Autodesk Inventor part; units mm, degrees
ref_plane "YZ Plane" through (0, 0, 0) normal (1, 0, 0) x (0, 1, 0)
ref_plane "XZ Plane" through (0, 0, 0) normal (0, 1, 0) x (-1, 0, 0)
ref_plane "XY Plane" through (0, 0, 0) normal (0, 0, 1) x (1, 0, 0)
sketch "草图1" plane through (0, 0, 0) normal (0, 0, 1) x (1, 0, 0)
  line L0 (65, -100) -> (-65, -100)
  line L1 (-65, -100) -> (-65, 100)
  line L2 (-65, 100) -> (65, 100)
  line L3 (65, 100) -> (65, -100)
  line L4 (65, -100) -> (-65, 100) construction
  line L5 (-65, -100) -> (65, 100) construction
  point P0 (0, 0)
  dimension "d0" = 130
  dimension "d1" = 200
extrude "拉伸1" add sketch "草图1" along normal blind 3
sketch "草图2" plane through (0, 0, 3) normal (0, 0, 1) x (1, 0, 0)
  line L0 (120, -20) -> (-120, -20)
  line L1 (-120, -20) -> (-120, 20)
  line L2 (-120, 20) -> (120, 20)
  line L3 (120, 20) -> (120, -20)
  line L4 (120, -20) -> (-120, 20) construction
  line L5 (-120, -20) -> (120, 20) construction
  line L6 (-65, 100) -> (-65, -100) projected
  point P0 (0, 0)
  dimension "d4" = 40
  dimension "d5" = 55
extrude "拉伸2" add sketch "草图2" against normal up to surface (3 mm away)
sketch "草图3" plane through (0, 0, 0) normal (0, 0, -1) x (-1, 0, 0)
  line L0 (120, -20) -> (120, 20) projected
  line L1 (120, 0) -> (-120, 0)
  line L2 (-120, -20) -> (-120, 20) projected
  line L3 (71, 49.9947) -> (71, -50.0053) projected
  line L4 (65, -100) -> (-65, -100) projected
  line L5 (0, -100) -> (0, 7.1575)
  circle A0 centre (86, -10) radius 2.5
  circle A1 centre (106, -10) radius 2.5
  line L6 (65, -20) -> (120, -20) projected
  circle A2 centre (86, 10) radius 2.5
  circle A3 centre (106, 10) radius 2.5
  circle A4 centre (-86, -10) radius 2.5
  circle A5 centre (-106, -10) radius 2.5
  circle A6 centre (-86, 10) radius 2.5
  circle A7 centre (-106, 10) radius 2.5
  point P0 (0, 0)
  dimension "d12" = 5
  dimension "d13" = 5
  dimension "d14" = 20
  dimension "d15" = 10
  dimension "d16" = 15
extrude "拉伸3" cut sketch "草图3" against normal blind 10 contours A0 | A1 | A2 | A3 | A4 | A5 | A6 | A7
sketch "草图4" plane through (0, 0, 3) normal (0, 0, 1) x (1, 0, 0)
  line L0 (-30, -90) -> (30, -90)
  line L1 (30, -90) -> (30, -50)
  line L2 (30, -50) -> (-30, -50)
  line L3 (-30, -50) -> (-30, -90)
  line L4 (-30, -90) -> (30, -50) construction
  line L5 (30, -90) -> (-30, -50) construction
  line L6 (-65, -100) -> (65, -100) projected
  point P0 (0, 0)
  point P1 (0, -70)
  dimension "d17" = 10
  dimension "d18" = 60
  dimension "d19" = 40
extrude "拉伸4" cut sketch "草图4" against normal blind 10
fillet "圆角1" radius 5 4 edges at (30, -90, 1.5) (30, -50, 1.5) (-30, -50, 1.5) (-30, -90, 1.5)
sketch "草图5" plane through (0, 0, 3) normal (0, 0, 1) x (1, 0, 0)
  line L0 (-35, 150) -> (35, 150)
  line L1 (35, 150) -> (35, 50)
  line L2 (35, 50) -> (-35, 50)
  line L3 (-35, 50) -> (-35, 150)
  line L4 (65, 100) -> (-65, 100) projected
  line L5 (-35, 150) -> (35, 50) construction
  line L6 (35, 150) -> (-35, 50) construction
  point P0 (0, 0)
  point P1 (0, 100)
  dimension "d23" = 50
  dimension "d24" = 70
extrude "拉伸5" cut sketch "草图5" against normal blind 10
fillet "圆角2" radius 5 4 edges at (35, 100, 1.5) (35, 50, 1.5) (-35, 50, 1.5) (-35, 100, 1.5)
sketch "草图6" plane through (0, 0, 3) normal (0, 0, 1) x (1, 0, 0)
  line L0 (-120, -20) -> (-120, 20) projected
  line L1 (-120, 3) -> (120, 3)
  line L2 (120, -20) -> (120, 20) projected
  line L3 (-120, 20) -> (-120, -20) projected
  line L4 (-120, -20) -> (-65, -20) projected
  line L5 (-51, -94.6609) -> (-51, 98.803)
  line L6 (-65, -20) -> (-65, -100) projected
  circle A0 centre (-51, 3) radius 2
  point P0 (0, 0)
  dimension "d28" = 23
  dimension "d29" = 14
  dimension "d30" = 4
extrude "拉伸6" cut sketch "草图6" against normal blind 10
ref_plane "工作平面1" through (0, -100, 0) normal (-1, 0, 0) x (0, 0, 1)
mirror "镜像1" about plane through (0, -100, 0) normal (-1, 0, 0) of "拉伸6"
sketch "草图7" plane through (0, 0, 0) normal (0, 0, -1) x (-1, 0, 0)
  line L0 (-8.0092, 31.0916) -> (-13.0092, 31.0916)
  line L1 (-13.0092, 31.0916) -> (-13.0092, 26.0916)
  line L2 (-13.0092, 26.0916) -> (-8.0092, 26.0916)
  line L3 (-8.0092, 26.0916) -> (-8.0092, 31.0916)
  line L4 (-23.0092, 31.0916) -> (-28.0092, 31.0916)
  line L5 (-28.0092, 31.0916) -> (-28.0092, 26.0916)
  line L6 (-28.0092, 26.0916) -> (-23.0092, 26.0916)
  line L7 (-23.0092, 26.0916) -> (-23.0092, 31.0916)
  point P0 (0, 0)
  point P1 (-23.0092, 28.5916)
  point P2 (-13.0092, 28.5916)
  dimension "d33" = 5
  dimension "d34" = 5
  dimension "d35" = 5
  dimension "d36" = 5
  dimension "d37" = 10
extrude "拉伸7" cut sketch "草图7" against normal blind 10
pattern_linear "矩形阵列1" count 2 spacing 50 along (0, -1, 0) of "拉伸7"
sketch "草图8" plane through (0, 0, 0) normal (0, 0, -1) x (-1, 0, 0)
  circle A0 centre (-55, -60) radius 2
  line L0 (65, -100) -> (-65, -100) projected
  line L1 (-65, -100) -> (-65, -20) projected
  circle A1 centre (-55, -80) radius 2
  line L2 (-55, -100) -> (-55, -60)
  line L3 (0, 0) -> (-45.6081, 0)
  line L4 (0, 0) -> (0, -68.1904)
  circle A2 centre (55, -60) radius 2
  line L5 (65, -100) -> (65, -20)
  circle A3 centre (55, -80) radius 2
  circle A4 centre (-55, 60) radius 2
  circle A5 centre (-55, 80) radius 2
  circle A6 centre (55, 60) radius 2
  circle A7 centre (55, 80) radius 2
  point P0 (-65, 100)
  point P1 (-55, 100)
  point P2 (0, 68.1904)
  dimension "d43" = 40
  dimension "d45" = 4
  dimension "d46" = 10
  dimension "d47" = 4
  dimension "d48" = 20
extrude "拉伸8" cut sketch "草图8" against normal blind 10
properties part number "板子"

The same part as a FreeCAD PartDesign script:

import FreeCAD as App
import Part
import Sketcher

V = App.Vector


def edges_at(feature, points):
    """Names of the edges that pass closest to the given points."""
    edges = feature.Shape.Edges
    near = lambda p: min(range(len(edges)), key=lambda i: edges[i].distToShape(Part.Vertex(*p))[0])
    return sorted({f"Edge{near(p) + 1}" for p in points})

doc = App.newDocument("Part")
body = doc.addObject("PartDesign::Body", "Body")

# Sketch on XY plane
sketch1 = body.newObject("Sketcher::SketchObject", "Sketch")
sketch1.AttachmentSupport = (doc.getObject("XY_Plane"), [""])
sketch1.MapMode = "FlatFace"
sketch1.addGeometry([
    Part.LineSegment(V(-65, -100, 0), V(65, -100, 0)),
    Part.LineSegment(V(65, -100, 0), V(65, 100, 0)),
    Part.LineSegment(V(65, 100, 0), V(-65, 100, 0)),
    Part.LineSegment(V(-65, 100, 0), V(-65, -100, 0)),
], False)
sketch1.addConstraint([
    Sketcher.Constraint("Coincident", 0, 2, 1, 1),
    Sketcher.Constraint("Coincident", 1, 2, 2, 1),
    Sketcher.Constraint("Coincident", 2, 2, 3, 1),
    Sketcher.Constraint("Coincident", 3, 2, 0, 1),
    Sketcher.Constraint("Horizontal", 0),
    Sketcher.Constraint("Vertical", 1),
    Sketcher.Constraint("Horizontal", 2),
    Sketcher.Constraint("Vertical", 3),
    Sketcher.Constraint("Symmetric", 0, 2, 2, 2, -1, 1),
    Sketcher.Constraint("DistanceX", 0, 1, 0, 2, 130.0),
    Sketcher.Constraint("DistanceY", 1, 1, 1, 2, 200.0),
])
pad1 = body.newObject("PartDesign::Pad", "Pad")
pad1.Profile = sketch1
pad1.Length = 3

# Sketch on XY plane
sketch2 = body.newObject("Sketcher::SketchObject", "Sketch001")
sketch2.AttachmentSupport = (doc.getObject("XY_Plane"), [""])
sketch2.MapMode = "FlatFace"
sketch2.AttachmentOffset = App.Placement(V(0, 0, 3), App.Rotation())
sketch2.addGeometry([
    Part.LineSegment(V(120, -20, 0), V(120, 20, 0)),
    Part.LineSegment(V(120, 20, 0), V(-120, 20, 0)),
    Part.LineSegment(V(-120, 20, 0), V(-120, -20, 0)),
    Part.LineSegment(V(-120, -20, 0), V(120, -20, 0)),
], False)
sketch2.addConstraint([
    Sketcher.Constraint("Coincident", 0, 2, 1, 1),
    Sketcher.Constraint("Coincident", 1, 2, 2, 1),
    Sketcher.Constraint("Coincident", 2, 2, 3, 1),
    Sketcher.Constraint("Coincident", 3, 2, 0, 1),
    Sketcher.Constraint("Vertical", 0),
    Sketcher.Constraint("Horizontal", 1),
    Sketcher.Constraint("Vertical", 2),
    Sketcher.Constraint("Horizontal", 3),
    Sketcher.Constraint("Symmetric", 0, 2, 2, 2, -1, 1),
    Sketcher.Constraint("DistanceY", 0, 1, 0, 2, 40.0),
    Sketcher.Constraint("DistanceX", 1, 2, 1, 1, 240.0),
])
pad2 = body.newObject("PartDesign::Pad", "Pad001")
pad2.Profile = sketch2
pad2.Length = 3
pad2.Reversed = True

# Sketch on XY plane
sketch3 = body.newObject("Sketcher::SketchObject", "Sketch002")
sketch3.AttachmentSupport = (doc.getObject("XY_Plane"), [""])
sketch3.MapMode = "FlatFace"
sketch3.addGeometry([
    Part.Circle(V(-86, -10, 0), V(0, 0, 1), 2.5),  # 0
    Part.Circle(V(-106, -10, 0), V(0, 0, 1), 2.5),  # 1
    Part.Circle(V(-86, 10, 0), V(0, 0, 1), 2.5),  # 2
    Part.Circle(V(-106, 10, 0), V(0, 0, 1), 2.5),  # 3
    Part.Circle(V(86, -10, 0), V(0, 0, 1), 2.5),  # 4
    Part.Circle(V(106, -10, 0), V(0, 0, 1), 2.5),  # 5
    Part.Circle(V(86, 10, 0), V(0, 0, 1), 2.5),  # 6
    Part.Circle(V(106, 10, 0), V(0, 0, 1), 2.5),  # 7
], False)
sketch3.addConstraint([
    Sketcher.Constraint("Equal", 0, 1),
    Sketcher.Constraint("Equal", 1, 2),
    Sketcher.Constraint("Equal", 2, 3),
    Sketcher.Constraint("Equal", 3, 4),
    Sketcher.Constraint("Equal", 4, 5),
    Sketcher.Constraint("Equal", 5, 6),
    Sketcher.Constraint("Equal", 6, 7),
    Sketcher.Constraint("Symmetric", 2, 3, 4, 3, -1, 1),
    Sketcher.Constraint("Symmetric", 3, 3, 5, 3, -1, 1),
    Sketcher.Constraint("Symmetric", 0, 3, 6, 3, -1, 1),
    Sketcher.Constraint("Symmetric", 1, 3, 7, 3, -1, 1),
    Sketcher.Constraint("Symmetric", 0, 3, 4, 3, -2),
    Sketcher.Constraint("Symmetric", 1, 3, 5, 3, -2),
    Sketcher.Constraint("Horizontal", 0, 3, 1, 3),
    Sketcher.Constraint("Diameter", 0, 5.0),
    Sketcher.Constraint("DistanceY", 0, 3, -1, 1, 10.0),
    Sketcher.Constraint("DistanceX", 1, 3, 0, 3, 20.0),
    Sketcher.Constraint("DistanceX", 0, 3, -1, 1, 86.0),
])
pocket1 = body.newObject("PartDesign::Pocket", "Pocket")
pocket1.Profile = sketch3
pocket1.Length = 10
pocket1.Reversed = True

# Sketch on XY plane
sketch4 = body.newObject("Sketcher::SketchObject", "Sketch003")
sketch4.AttachmentSupport = (doc.getObject("XY_Plane"), [""])
sketch4.MapMode = "FlatFace"
sketch4.AttachmentOffset = App.Placement(V(0, 0, 3), App.Rotation())
sketch4.addGeometry([
    Part.LineSegment(V(-30, -50, 0), V(-30, -90, 0)),
    Part.LineSegment(V(-30, -90, 0), V(30, -90, 0)),
    Part.LineSegment(V(30, -90, 0), V(30, -50, 0)),
    Part.LineSegment(V(30, -50, 0), V(-30, -50, 0)),
], False)
sketch4.addConstraint([
    Sketcher.Constraint("Coincident", 0, 2, 1, 1),
    Sketcher.Constraint("Coincident", 1, 2, 2, 1),
    Sketcher.Constraint("Coincident", 2, 2, 3, 1),
    Sketcher.Constraint("Coincident", 3, 2, 0, 1),
    Sketcher.Constraint("Vertical", 0),
    Sketcher.Constraint("Horizontal", 1),
    Sketcher.Constraint("Vertical", 2),
    Sketcher.Constraint("Horizontal", 3),
    Sketcher.Constraint("DistanceX", 1, 1, 1, 2, 60.0),
    Sketcher.Constraint("DistanceY", 0, 2, 0, 1, 40.0),
    Sketcher.Constraint("DistanceX", 0, 2, -1, 1, 30.0),
    Sketcher.Constraint("DistanceY", 0, 2, -1, 1, 90.0),
])
pocket2 = body.newObject("PartDesign::Pocket", "Pocket001")
pocket2.Profile = sketch4
pocket2.Length = 10
doc.recompute()

fillet = body.newObject("PartDesign::Fillet", "Fillet")
fillet.Base = (pocket2, edges_at(pocket2, [
    (30, -90, 1.5),
    (30, -50, 1.5),
    (-30, -50, 1.5),
    (-30, -90, 1.5),
]))
fillet.Radius = 5

# Sketch on XY plane
sketch5 = body.newObject("Sketcher::SketchObject", "Sketch004")
sketch5.AttachmentSupport = (doc.getObject("XY_Plane"), [""])
sketch5.MapMode = "FlatFace"
sketch5.AttachmentOffset = App.Placement(V(0, 0, 3), App.Rotation())
sketch5.addGeometry([
    Part.LineSegment(V(35, 150, 0), V(-35, 150, 0)),
    Part.LineSegment(V(-35, 150, 0), V(-35, 50, 0)),
    Part.LineSegment(V(-35, 50, 0), V(35, 50, 0)),
    Part.LineSegment(V(35, 50, 0), V(35, 150, 0)),
], False)
sketch5.addConstraint([
    Sketcher.Constraint("Coincident", 0, 2, 1, 1),
    Sketcher.Constraint("Coincident", 1, 2, 2, 1),
    Sketcher.Constraint("Coincident", 2, 2, 3, 1),
    Sketcher.Constraint("Coincident", 3, 2, 0, 1),
    Sketcher.Constraint("Horizontal", 0),
    Sketcher.Constraint("Vertical", 1),
    Sketcher.Constraint("Horizontal", 2),
    Sketcher.Constraint("Vertical", 3),
    Sketcher.Constraint("DistanceX", 0, 2, 0, 1, 70.0),
    Sketcher.Constraint("DistanceY", -1, 1, 1, 2, 50.0),
    Sketcher.Constraint("DistanceY", 1, 2, 1, 1, 100.0),
    Sketcher.Constraint("DistanceX", 0, 2, -1, 1, 35.0),
])
pocket3 = body.newObject("PartDesign::Pocket", "Pocket002")
pocket3.Profile = sketch5
pocket3.Length = 10
doc.recompute()

fillet2 = body.newObject("PartDesign::Fillet", "Fillet001")
fillet2.Base = (pocket3, edges_at(pocket3, [
    (35, 100, 1.5),
    (35, 50, 1.5),
    (-35, 50, 1.5),
    (-35, 100, 1.5),
]))
fillet2.Radius = 5

# Sketch on XY plane
sketch6 = body.newObject("Sketcher::SketchObject", "Sketch005")
sketch6.AttachmentSupport = (doc.getObject("XY_Plane"), [""])
sketch6.MapMode = "FlatFace"
sketch6.AttachmentOffset = App.Placement(V(0, 0, 3), App.Rotation())
sketch6.addGeometry(Part.Circle(V(-51, 3, 0), V(0, 0, 1), 2), False)
sketch6.addConstraint([
    Sketcher.Constraint("Diameter", 0, 4.0),
    Sketcher.Constraint("DistanceX", 0, 3, -1, 1, 51.0),
    Sketcher.Constraint("DistanceY", -1, 1, 0, 3, 3.0),
])
pocket4 = body.newObject("PartDesign::Pocket", "Pocket003")
pocket4.Profile = sketch6
pocket4.Length = 10
doc.recompute()

mirrored = body.newObject("PartDesign::Mirrored", "Mirrored")
mirrored.Originals = [pocket4]
mirrored.MirrorPlane = (doc.getObject("YZ_Plane"), [""])
body.Tip = mirrored

# Sketch on XY plane
sketch7 = body.newObject("Sketcher::SketchObject", "Sketch006")
sketch7.AttachmentSupport = (doc.getObject("XY_Plane"), [""])
sketch7.MapMode = "FlatFace"
sketch7.addGeometry([
    Part.LineSegment(V(8.0092, 26.0916, 0), V(8.0092, 31.0916, 0)),  # 0
    Part.LineSegment(V(8.0092, 31.0916, 0), V(13.0092, 31.0916, 0)),  # 1
    Part.LineSegment(V(13.0092, 31.0916, 0), V(13.0092, 26.0916, 0)),  # 2
    Part.LineSegment(V(13.0092, 26.0916, 0), V(8.0092, 26.0916, 0)),  # 3
    Part.LineSegment(V(23.0092, 26.0916, 0), V(23.0092, 31.0916, 0)),  # 4
    Part.LineSegment(V(23.0092, 31.0916, 0), V(28.0092, 31.0916, 0)),  # 5
    Part.LineSegment(V(28.0092, 31.0916, 0), V(28.0092, 26.0916, 0)),  # 6
    Part.LineSegment(V(28.0092, 26.0916, 0), V(23.0092, 26.0916, 0)),  # 7
], False)
sketch7.addConstraint([
    Sketcher.Constraint("Coincident", 0, 2, 1, 1),
    Sketcher.Constraint("Coincident", 1, 2, 2, 1),
    Sketcher.Constraint("Coincident", 2, 2, 3, 1),
    Sketcher.Constraint("Coincident", 3, 2, 0, 1),
    Sketcher.Constraint("Coincident", 4, 2, 5, 1),
    Sketcher.Constraint("Coincident", 5, 2, 6, 1),
    Sketcher.Constraint("Coincident", 6, 2, 7, 1),
    Sketcher.Constraint("Coincident", 7, 2, 4, 1),
    Sketcher.Constraint("Vertical", 0),
    Sketcher.Constraint("Horizontal", 1),
    Sketcher.Constraint("Vertical", 2),
    Sketcher.Constraint("Horizontal", 3),
    Sketcher.Constraint("Vertical", 4),
    Sketcher.Constraint("Horizontal", 5),
    Sketcher.Constraint("Vertical", 6),
    Sketcher.Constraint("Horizontal", 7),
    Sketcher.Constraint("Horizontal", 1, 2, 4, 2),
    Sketcher.Constraint("Horizontal", 3, 2, 6, 2),
    Sketcher.Constraint("Equal", 3, 5),
    Sketcher.Constraint("Equal", 7, 0),
    Sketcher.Constraint("DistanceX", 1, 1, 1, 2, 5.0),
    Sketcher.Constraint("DistanceX", 1, 2, 4, 2, 10.0),
    Sketcher.Constraint("DistanceX", -1, 1, 0, 2, 8.0092),
    Sketcher.Constraint("DistanceY", -1, 1, 0, 2, 31.0916),
])
pocket5 = body.newObject("PartDesign::Pocket", "Pocket004")
pocket5.Profile = sketch7
pocket5.Length = 10
pocket5.Reversed = True
doc.recompute()

linearpattern = body.newObject("PartDesign::LinearPattern", "LinearPattern")
linearpattern.Originals = [pocket5]
linearpattern.Direction = (doc.getObject("Y_Axis"), [""])
linearpattern.Mode = "offset"
linearpattern.Offset = 50
linearpattern.Occurrences = 2
linearpattern.Reversed = True
body.Tip = linearpattern

# Sketch on XY plane
sketch8 = body.newObject("Sketcher::SketchObject", "Sketch007")
sketch8.AttachmentSupport = (doc.getObject("XY_Plane"), [""])
sketch8.MapMode = "FlatFace"
sketch8.addGeometry([
    Part.Circle(V(55, -60, 0), V(0, 0, 1), 2),  # 0
    Part.Circle(V(55, -80, 0), V(0, 0, 1), 2),  # 1
    Part.Circle(V(-55, -60, 0), V(0, 0, 1), 2),  # 2
    Part.Circle(V(-55, -80, 0), V(0, 0, 1), 2),  # 3
    Part.Circle(V(55, 60, 0), V(0, 0, 1), 2),  # 4
    Part.Circle(V(55, 80, 0), V(0, 0, 1), 2),  # 5
    Part.Circle(V(-55, 60, 0), V(0, 0, 1), 2),  # 6
    Part.Circle(V(-55, 80, 0), V(0, 0, 1), 2),  # 7
], False)
sketch8.addConstraint([
    Sketcher.Constraint("Equal", 0, 1),
    Sketcher.Constraint("Equal", 1, 2),
    Sketcher.Constraint("Equal", 2, 3),
    Sketcher.Constraint("Equal", 3, 4),
    Sketcher.Constraint("Equal", 4, 5),
    Sketcher.Constraint("Equal", 5, 6),
    Sketcher.Constraint("Equal", 6, 7),
    Sketcher.Constraint("Symmetric", 2, 3, 4, 3, -1, 1),
    Sketcher.Constraint("Symmetric", 3, 3, 5, 3, -1, 1),
    Sketcher.Constraint("Symmetric", 0, 3, 6, 3, -1, 1),
    Sketcher.Constraint("Symmetric", 1, 3, 7, 3, -1, 1),
    Sketcher.Constraint("Symmetric", 0, 3, 2, 3, -2),
    Sketcher.Constraint("Symmetric", 1, 3, 3, 3, -2),
    Sketcher.Constraint("Vertical", 0, 3, 1, 3),
    Sketcher.Constraint("Diameter", 0, 4.0),
    Sketcher.Constraint("DistanceY", 1, 3, 0, 3, 20.0),
    Sketcher.Constraint("DistanceX", -1, 1, 0, 3, 55.0),
    Sketcher.Constraint("DistanceY", 0, 3, -1, 1, 60.0),
])
pocket6 = body.newObject("PartDesign::Pocket", "Pocket005")
pocket6.Profile = sketch8
pocket6.Length = 10
pocket6.Reversed = True

doc.recompute()
